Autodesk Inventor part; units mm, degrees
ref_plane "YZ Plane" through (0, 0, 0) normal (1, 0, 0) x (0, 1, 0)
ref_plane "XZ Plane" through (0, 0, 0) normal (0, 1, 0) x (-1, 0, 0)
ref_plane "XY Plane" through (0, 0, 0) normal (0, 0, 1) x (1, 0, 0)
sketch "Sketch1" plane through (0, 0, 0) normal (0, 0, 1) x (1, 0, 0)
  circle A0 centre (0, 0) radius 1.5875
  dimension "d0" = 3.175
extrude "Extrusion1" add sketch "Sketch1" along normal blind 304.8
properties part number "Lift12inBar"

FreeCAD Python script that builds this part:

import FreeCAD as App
import Part
import Sketcher
Q = App.Units.Quantity

doc = App.newDocument("Part")
body = doc.addObject("PartDesign::Body", "Body")

sketch1 = doc.addObject("Sketcher::SketchObject", "Sketch")
body.addObject(sketch1)
sketch1.AttachmentSupport = (doc.XY_Plane, [""])
sketch1.MapMode = "FlatFace"
sketch1.addGeometry(Part.Circle(App.Vector(0, 0, 0), App.Vector(0, 0, 1), 1.6), False)
sketch1.addConstraint([
    Sketcher.Constraint("Coincident", 0, 3, -1, 1),
    Sketcher.Constraint("Diameter", 0, Q("0.125 in")),
])
pad1 = doc.addObject("PartDesign::Pad", "Pad")
body.addObject(pad1)
pad1.Profile = sketch1
pad1.Length = Q("12 in")

doc.recompute()
